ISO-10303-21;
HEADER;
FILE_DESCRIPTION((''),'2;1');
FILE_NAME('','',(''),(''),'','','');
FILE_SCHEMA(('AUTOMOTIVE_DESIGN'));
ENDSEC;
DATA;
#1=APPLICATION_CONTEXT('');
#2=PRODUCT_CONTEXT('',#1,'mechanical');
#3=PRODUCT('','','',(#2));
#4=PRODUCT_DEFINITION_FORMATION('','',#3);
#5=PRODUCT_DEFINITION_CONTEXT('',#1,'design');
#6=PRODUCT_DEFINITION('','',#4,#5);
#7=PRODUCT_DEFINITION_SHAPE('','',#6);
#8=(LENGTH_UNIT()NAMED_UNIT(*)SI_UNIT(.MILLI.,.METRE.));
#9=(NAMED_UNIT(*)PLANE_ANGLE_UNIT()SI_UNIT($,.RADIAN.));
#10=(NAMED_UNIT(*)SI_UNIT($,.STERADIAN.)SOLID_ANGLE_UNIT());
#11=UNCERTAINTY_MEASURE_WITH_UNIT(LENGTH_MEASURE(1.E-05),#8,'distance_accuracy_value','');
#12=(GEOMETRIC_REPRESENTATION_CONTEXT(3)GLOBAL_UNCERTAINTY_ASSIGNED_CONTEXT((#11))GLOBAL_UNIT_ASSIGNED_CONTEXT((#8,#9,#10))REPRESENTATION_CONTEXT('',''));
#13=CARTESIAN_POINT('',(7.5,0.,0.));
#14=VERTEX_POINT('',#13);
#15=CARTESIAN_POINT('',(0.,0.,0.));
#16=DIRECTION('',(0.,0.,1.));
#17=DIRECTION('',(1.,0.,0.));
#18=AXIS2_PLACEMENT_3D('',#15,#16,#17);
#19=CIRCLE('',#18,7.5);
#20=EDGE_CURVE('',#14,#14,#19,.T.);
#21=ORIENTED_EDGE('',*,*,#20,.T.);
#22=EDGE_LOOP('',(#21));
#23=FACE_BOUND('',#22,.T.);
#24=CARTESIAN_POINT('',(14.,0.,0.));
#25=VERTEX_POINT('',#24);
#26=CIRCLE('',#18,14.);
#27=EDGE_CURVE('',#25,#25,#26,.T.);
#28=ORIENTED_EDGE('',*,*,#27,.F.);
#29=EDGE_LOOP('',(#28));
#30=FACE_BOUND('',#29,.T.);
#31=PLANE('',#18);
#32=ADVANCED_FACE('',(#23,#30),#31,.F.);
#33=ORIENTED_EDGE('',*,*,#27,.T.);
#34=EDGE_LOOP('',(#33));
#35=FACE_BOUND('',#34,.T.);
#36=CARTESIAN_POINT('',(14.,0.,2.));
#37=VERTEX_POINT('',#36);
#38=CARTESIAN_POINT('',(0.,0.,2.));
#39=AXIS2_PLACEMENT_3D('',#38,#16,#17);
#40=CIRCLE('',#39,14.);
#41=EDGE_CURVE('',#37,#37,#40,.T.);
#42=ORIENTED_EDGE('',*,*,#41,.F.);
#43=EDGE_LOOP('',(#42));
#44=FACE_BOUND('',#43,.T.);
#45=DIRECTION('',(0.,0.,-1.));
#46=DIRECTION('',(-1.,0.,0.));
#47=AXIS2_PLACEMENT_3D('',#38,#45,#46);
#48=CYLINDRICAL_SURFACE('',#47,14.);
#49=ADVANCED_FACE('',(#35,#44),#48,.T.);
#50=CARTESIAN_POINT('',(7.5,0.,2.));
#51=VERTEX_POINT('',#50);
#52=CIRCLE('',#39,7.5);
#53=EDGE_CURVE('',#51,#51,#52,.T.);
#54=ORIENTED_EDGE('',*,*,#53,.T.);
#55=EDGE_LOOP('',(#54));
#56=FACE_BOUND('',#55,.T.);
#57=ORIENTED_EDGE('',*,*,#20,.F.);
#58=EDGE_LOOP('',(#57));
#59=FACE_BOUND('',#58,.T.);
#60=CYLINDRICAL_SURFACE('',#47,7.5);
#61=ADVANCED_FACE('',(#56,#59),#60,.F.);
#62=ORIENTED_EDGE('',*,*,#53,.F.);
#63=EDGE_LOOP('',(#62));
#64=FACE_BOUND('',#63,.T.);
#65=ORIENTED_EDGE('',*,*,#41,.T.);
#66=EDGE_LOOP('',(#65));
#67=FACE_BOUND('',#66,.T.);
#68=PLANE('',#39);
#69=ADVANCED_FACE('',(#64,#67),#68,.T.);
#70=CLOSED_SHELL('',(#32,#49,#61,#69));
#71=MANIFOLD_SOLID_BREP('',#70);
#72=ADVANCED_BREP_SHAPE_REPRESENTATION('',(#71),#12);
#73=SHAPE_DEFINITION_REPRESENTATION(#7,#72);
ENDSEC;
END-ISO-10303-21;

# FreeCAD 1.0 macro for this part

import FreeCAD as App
import Part
import Sketcher

V = App.Vector

doc = App.newDocument("Part")
body = doc.addObject("PartDesign::Body", "Body")

# Sketch on XY plane
sketch1 = body.newObject("Sketcher::SketchObject", "Sketch")
sketch1.AttachmentSupport = (doc.getObject("XY_Plane"), [""])
sketch1.MapMode = "FlatFace"
sketch1.addGeometry(Part.Circle(V(0, 0, 0), V(0, 0, 1), 14), False)
sketch1.addGeometry(Part.Circle(V(0, 0, 0), V(0, 0, 1), 7.5), False)
sketch1.addConstraint(Sketcher.Constraint("Coincident", 0, 3, -1, 1))
sketch1.addConstraint(Sketcher.Constraint("Coincident", 1, 3, -1, 1))
sketch1.addConstraint(Sketcher.Constraint("Diameter", 0, 28.0))
sketch1.addConstraint(Sketcher.Constraint("Diameter", 1, 15.0))
pad1 = body.newObject("PartDesign::Pad", "Pad")
pad1.Profile = sketch1
pad1.Length = 2

doc.recompute()
